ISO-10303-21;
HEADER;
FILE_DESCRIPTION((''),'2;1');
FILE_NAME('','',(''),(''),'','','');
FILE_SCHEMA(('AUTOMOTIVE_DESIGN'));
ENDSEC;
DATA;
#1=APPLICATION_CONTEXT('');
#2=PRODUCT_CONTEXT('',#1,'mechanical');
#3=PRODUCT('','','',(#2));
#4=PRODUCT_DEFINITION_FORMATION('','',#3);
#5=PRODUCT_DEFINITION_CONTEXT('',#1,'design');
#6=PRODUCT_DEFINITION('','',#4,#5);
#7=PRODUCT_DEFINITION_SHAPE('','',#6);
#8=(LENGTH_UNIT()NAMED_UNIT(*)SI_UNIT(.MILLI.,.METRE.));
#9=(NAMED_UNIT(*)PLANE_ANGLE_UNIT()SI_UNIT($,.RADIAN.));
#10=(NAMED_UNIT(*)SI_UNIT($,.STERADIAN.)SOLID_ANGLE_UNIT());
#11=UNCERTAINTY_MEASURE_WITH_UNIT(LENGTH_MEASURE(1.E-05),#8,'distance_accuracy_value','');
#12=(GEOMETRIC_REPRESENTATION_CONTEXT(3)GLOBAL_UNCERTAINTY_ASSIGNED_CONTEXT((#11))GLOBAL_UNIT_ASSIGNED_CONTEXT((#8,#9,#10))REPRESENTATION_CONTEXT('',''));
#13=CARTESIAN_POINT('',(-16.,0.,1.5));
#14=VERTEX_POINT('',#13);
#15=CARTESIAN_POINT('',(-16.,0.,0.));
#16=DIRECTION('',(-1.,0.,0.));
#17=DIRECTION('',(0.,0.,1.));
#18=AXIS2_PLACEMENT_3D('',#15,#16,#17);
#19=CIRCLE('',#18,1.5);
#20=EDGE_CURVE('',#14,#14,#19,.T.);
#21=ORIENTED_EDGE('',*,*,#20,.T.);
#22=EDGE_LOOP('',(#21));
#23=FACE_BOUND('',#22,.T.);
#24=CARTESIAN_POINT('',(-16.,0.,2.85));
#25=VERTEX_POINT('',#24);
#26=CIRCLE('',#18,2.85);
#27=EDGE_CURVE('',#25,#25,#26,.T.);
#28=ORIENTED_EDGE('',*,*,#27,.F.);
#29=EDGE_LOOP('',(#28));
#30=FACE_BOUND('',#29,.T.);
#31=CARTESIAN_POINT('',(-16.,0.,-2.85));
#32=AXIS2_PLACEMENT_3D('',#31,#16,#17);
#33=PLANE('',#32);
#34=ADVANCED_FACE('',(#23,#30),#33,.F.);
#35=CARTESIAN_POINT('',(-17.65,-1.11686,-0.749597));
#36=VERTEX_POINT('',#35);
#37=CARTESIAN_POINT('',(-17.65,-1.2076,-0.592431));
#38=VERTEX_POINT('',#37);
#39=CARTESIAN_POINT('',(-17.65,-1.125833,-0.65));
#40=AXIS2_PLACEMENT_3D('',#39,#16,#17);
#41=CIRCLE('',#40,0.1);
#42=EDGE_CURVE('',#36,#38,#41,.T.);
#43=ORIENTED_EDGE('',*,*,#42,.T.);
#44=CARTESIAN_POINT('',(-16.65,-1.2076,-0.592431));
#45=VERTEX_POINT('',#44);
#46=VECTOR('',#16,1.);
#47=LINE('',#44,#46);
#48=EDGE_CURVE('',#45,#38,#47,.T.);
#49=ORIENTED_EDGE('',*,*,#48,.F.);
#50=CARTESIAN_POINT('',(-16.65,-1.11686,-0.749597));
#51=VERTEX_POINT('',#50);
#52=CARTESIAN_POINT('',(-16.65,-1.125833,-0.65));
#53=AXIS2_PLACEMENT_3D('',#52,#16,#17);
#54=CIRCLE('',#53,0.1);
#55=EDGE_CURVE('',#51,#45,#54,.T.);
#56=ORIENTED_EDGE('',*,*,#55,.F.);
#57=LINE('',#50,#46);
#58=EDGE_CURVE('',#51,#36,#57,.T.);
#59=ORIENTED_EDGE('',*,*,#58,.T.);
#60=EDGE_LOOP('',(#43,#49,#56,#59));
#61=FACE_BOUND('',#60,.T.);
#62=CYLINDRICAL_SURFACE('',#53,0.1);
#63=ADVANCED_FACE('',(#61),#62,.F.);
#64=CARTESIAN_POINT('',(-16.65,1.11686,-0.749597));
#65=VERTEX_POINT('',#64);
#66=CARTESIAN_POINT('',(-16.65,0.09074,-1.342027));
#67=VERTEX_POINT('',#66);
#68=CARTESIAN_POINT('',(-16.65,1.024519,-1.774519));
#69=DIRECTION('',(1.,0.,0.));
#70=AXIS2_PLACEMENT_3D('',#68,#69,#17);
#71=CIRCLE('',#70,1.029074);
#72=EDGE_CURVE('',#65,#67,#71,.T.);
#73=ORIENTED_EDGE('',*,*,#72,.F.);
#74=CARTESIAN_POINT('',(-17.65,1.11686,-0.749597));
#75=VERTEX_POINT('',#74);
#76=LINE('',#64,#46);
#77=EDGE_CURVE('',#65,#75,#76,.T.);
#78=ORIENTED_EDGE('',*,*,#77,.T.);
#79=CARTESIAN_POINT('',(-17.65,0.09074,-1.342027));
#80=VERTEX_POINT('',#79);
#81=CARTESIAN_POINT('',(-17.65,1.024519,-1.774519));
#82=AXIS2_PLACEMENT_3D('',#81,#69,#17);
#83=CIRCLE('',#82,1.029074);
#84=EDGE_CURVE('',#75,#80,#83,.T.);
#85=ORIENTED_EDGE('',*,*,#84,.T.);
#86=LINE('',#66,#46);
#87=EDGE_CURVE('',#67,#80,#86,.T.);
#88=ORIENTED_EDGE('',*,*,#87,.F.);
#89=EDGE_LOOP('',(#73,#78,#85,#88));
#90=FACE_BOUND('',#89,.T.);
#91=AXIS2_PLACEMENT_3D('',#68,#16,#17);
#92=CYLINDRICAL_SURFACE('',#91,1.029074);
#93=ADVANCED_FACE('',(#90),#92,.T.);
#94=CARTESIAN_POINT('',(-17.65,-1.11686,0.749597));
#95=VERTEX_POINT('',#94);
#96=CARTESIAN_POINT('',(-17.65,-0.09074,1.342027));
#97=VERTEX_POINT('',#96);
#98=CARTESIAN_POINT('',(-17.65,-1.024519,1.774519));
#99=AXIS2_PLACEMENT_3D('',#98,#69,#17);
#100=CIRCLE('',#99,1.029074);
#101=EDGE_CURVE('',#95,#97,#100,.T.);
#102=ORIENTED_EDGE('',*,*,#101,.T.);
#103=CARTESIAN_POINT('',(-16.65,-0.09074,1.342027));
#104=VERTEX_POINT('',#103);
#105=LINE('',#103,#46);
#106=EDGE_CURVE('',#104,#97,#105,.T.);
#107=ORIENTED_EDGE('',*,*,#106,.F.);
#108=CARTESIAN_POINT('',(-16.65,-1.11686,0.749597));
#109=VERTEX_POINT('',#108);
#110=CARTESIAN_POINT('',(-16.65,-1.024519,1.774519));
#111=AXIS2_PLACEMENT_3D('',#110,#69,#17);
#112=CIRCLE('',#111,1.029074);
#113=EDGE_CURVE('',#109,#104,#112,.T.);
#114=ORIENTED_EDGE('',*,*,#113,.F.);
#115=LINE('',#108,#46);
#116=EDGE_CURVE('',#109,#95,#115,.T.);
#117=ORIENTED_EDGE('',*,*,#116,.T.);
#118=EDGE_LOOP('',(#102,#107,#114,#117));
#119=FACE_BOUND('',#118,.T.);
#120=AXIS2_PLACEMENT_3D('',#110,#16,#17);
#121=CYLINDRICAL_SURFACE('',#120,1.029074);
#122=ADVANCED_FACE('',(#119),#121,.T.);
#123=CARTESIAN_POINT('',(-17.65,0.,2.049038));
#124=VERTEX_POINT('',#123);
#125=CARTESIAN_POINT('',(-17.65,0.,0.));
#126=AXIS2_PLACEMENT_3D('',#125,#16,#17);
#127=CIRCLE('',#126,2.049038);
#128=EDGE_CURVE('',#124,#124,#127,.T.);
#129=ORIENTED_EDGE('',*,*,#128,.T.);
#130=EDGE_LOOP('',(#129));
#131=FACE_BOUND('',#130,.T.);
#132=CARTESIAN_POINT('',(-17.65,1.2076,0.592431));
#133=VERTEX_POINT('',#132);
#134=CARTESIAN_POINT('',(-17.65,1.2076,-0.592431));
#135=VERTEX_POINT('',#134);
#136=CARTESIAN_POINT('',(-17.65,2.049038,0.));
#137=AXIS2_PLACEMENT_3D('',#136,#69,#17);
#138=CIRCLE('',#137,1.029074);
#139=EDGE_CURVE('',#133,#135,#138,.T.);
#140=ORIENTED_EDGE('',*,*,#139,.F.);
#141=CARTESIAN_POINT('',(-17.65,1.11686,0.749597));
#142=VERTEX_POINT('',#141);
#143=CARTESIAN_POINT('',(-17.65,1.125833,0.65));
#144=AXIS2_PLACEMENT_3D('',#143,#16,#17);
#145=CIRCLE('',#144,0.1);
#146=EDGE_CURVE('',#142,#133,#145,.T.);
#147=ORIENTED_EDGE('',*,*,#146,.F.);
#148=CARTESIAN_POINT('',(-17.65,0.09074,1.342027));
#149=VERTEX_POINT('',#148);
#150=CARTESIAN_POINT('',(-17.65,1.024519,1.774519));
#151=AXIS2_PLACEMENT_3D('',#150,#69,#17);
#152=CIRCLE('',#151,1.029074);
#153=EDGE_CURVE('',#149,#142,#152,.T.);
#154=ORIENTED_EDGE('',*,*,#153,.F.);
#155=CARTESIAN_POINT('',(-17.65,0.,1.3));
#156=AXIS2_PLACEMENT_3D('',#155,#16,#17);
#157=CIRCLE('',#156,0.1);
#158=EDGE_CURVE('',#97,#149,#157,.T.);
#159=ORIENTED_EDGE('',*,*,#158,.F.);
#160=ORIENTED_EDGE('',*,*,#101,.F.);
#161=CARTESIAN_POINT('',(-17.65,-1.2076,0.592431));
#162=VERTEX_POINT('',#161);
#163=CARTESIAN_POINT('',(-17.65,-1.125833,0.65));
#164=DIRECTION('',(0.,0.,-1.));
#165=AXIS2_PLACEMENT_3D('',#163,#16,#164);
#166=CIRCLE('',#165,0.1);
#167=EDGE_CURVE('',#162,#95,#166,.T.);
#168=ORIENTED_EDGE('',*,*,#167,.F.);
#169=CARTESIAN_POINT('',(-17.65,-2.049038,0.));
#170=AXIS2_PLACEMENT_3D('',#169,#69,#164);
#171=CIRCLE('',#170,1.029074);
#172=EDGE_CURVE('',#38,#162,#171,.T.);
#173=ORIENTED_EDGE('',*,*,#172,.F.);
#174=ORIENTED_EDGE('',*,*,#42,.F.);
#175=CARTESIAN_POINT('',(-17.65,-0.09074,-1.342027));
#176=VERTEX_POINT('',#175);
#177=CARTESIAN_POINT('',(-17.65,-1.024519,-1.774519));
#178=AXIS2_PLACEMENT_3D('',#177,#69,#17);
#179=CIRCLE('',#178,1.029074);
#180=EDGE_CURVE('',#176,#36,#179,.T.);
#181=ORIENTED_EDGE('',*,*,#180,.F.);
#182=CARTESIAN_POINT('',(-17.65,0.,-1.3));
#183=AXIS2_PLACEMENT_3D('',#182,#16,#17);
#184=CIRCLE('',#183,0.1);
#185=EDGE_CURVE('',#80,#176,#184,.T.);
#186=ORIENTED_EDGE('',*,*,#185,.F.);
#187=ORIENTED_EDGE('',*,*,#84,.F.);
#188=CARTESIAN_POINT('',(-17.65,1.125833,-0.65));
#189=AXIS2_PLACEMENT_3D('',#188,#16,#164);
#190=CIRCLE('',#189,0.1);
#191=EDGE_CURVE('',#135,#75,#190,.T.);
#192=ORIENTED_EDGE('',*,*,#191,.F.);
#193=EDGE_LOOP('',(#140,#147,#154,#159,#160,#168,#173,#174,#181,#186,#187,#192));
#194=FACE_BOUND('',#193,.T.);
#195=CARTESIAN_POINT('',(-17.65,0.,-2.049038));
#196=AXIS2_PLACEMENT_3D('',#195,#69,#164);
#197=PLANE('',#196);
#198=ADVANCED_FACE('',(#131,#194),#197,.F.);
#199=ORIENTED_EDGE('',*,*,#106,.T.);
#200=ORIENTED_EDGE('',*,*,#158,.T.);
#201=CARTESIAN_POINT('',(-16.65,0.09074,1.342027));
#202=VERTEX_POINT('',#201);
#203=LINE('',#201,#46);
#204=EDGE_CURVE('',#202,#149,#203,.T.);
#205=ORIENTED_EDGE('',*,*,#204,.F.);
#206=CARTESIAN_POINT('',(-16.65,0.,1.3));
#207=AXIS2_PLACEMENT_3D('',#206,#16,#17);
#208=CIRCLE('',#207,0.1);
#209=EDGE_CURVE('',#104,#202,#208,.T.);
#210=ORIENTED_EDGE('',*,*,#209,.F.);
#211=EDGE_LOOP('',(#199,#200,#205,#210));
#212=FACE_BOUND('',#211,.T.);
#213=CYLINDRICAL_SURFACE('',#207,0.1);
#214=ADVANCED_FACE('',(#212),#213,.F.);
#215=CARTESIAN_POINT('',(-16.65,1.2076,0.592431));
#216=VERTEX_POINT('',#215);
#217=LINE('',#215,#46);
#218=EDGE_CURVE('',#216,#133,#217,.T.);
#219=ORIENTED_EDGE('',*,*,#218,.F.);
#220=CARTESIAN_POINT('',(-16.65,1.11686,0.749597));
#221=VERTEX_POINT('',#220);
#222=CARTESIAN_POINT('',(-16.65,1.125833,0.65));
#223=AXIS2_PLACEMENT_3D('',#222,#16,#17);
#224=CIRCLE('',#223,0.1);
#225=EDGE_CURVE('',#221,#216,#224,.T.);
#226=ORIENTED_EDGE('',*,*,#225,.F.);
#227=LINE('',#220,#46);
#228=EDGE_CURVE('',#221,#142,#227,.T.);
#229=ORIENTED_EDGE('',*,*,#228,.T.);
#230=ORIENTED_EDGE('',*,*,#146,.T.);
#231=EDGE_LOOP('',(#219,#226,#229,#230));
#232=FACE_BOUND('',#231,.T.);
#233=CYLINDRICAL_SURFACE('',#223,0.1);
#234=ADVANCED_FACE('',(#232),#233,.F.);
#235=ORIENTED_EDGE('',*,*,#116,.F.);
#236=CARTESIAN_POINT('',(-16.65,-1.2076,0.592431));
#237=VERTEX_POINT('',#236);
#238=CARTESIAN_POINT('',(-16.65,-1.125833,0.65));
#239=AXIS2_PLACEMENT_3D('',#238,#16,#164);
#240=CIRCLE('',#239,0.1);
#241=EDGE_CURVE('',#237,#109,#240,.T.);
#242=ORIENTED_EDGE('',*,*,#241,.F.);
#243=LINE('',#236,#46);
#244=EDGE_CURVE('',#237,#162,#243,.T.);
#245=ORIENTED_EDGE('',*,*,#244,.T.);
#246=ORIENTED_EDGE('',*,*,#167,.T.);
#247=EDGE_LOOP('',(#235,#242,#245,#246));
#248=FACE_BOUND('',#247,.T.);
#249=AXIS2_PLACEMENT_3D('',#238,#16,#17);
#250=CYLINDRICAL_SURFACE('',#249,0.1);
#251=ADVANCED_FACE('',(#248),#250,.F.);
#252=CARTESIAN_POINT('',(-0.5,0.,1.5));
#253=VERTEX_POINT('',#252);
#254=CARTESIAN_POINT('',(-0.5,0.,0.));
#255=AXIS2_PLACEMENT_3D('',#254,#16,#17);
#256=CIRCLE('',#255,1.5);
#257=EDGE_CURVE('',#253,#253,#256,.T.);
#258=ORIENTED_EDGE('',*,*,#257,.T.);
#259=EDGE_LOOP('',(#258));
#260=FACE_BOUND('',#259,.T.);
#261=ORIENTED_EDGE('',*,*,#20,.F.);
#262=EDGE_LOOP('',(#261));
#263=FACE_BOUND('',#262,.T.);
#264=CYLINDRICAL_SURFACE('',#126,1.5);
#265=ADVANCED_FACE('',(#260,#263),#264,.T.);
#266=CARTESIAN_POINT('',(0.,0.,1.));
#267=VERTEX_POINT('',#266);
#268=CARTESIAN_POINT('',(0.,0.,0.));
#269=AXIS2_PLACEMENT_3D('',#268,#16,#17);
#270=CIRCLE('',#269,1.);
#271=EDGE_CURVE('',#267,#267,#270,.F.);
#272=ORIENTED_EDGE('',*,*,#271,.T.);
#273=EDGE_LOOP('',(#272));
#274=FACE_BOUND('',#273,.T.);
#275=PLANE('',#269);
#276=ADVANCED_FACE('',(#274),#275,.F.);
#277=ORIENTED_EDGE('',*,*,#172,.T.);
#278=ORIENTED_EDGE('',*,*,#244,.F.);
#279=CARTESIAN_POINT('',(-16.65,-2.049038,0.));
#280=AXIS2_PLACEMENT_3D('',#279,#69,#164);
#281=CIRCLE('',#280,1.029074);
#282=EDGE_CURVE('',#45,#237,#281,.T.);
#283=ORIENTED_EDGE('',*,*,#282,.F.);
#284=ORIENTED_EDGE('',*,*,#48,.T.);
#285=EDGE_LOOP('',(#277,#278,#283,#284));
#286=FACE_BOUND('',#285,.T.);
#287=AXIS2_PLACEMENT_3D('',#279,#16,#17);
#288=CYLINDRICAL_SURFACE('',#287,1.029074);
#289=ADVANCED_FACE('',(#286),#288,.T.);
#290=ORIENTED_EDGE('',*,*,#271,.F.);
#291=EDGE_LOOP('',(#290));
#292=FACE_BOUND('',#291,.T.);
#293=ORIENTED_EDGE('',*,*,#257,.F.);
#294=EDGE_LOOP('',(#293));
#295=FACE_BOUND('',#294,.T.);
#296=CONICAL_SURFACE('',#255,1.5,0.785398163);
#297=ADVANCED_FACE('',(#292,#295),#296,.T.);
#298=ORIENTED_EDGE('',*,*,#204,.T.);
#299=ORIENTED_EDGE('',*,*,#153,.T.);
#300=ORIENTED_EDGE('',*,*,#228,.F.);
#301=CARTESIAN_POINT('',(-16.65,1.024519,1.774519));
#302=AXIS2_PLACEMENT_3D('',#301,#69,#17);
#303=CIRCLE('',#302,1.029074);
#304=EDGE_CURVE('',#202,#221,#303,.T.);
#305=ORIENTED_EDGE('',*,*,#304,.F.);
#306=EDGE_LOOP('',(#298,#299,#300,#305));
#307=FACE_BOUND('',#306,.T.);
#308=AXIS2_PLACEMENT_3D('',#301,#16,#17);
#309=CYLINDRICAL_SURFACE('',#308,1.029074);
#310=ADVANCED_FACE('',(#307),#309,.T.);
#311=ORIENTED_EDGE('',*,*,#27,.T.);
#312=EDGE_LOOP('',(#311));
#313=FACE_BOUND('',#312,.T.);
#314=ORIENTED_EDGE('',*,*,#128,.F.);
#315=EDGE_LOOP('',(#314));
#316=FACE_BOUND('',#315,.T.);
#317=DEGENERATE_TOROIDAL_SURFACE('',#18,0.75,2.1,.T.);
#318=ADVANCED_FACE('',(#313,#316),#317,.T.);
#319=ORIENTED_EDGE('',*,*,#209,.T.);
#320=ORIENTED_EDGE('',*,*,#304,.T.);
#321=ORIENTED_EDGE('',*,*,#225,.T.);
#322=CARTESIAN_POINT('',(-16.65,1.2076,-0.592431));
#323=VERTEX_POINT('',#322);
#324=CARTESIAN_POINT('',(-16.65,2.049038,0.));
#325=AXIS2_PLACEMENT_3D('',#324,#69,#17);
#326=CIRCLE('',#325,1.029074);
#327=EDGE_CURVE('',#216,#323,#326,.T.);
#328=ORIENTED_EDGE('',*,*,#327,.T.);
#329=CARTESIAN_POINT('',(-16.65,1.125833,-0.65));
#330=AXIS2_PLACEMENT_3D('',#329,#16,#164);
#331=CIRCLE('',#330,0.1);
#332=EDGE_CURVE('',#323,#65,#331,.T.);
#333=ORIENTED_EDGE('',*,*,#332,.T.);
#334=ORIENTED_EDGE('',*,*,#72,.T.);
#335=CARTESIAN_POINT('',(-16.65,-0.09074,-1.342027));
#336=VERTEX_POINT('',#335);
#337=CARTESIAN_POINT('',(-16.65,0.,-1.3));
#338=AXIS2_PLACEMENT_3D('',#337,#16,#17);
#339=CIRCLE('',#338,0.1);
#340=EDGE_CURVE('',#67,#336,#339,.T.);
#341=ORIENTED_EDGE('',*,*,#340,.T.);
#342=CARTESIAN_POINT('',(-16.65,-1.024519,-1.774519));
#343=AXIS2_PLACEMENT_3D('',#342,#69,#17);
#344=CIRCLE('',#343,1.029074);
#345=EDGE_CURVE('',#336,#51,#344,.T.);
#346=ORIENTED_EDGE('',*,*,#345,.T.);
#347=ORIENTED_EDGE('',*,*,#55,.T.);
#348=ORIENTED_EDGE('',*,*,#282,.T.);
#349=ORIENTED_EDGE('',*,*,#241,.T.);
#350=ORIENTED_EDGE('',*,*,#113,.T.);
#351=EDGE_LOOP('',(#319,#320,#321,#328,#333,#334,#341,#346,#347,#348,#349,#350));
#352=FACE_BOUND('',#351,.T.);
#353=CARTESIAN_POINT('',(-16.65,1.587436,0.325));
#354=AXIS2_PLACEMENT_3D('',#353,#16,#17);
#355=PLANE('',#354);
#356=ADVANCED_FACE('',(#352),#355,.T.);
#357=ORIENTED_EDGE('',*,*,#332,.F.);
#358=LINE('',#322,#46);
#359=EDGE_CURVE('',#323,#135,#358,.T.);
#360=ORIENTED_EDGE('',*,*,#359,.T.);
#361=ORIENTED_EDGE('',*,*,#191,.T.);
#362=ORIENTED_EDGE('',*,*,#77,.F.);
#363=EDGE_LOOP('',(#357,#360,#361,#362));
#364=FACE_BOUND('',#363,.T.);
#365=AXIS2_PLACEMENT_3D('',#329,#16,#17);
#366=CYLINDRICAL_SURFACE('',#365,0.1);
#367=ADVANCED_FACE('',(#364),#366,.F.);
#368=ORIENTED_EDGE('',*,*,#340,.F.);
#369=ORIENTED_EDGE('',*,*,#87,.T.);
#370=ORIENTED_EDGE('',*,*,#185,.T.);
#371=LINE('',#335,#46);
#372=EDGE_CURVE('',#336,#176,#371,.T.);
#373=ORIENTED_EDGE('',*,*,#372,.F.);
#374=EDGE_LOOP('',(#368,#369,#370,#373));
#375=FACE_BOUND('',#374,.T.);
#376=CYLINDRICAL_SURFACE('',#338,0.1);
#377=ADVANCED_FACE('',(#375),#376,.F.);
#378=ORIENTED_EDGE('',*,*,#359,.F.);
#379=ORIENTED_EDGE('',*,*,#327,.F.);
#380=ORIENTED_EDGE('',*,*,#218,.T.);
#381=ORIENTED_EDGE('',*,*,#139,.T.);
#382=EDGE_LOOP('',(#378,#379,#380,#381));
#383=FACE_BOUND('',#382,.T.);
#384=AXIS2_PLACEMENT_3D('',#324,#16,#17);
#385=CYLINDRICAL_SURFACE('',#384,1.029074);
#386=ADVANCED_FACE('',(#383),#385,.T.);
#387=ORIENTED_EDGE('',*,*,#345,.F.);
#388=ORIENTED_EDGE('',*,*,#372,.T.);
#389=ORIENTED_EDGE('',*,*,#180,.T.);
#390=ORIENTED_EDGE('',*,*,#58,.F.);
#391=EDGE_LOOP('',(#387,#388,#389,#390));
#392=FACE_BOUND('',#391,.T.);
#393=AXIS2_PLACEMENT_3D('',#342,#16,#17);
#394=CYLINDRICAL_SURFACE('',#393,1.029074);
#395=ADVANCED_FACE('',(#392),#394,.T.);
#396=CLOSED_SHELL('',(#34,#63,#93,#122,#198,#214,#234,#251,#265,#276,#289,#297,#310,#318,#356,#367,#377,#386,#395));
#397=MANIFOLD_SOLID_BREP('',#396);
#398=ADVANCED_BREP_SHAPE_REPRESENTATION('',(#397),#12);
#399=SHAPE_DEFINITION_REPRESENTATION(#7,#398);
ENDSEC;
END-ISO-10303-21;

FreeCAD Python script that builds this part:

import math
import FreeCAD as App
import Part
import Sketcher

V = App.Vector
Q = App.Units.Quantity


def edges_at(feature, points):
    """Names of the edges that pass closest to the given points."""
    edges = feature.Shape.Edges
    near = lambda p: min(range(len(edges)), key=lambda i: edges[i].distToShape(Part.Vertex(*p))[0])
    return sorted({f"Edge{near(p) + 1}" for p in points})

doc = App.newDocument("Part")
body = doc.addObject("PartDesign::Body", "Body")

sketch1 = body.newObject("Sketcher::SketchObject", "Sketch")
sketch1.AttachmentSupport = (doc.getObject("XZ_Plane"), [""])
sketch1.MapMode = "FlatFace"
sketch1.addGeometry(Part.LineSegment(V(0, 0, 0), V(0, -1.5, 0)), False)
sketch1.addGeometry(Part.LineSegment(V(0, -1.5, 0), V(-16, -1.5, 0)), False)
sketch1.addGeometry(Part.LineSegment(V(-16, -1.5, 0), V(-16, -2.85, 0)), False)
sketch1.addGeometry(Part.ArcOfCircle(Part.Circle(V(-16, -0.75, 0), V(0, 0, 1), 2.1), math.radians(-141.786789), math.radians(-90)), False)
sketch1.addGeometry(Part.LineSegment(V(-17.65, -2.049038, 0), V(-17.65, 0, 0)), False)
sketch1.addGeometry(Part.LineSegment(V(-17.65, 0, 0), V(0, 0, 0)), False)
sketch1.addConstraint(Sketcher.Constraint("Coincident", 0, 2, 1, 1))
sketch1.addConstraint(Sketcher.Constraint("Coincident", 1, 2, 2, 1))
sketch1.addConstraint(Sketcher.Constraint("Coincident", 2, 2, 3, 2))
sketch1.addConstraint(Sketcher.Constraint("Coincident", 3, 1, 4, 1))
sketch1.addConstraint(Sketcher.Constraint("Coincident", 4, 2, 5, 1))
sketch1.addConstraint(Sketcher.Constraint("Coincident", 5, 2, 0, 1))
sketch1.addConstraint(Sketcher.Constraint("Vertical", 0))
sketch1.addConstraint(Sketcher.Constraint("Horizontal", 1))
sketch1.addConstraint(Sketcher.Constraint("Vertical", 2))
sketch1.addConstraint(Sketcher.Constraint("Vertical", 4))
sketch1.addConstraint(Sketcher.Constraint("Horizontal", 5))
sketch1.addConstraint(Sketcher.Constraint("Coincident", 5, 2, -1, 1))
sketch1.addConstraint(Sketcher.Constraint("Vertical", 3, 3, 1, 2))
sketch1.addConstraint(Sketcher.Constraint("Radius", 3, Q("2.1 mm")))
sketch1.addConstraint(Sketcher.Constraint("DistanceX", 1, 2, 1, 1, Q("16 mm")))
sketch1.addConstraint(Sketcher.Constraint("DistanceY", 0, 2, 0, 1, Q("1.5 mm")))
sketch1.addConstraint(Sketcher.Constraint("DistanceX", 5, 1, 5, 2, Q("17.65 mm")))
sketch1.addConstraint(Sketcher.Constraint("DistanceY", 2, 2, 2, 1, Q("1.35 mm")))
revolution = body.newObject("PartDesign::Revolution", "Revolution")
revolution.Profile = sketch1
revolution.ReferenceAxis = (sketch1, ["H_Axis"])
revolution.Angle = 360
doc.recompute()

chamfer = body.newObject("PartDesign::Chamfer", "Chamfer")
chamfer.Base = (revolution, edges_at(revolution, [(0, 0, -1.5)]))
chamfer.Size = 0.5

sketch2 = body.newObject("Sketcher::SketchObject", "Sketch001")
sketch2.AttachmentSupport = (doc.getObject("YZ_Plane"), [""])
sketch2.MapMode = "FlatFace"
sketch2.AttachmentOffset = App.Placement(V(0, 0, -17.65), App.Rotation())
sketch2.addGeometry(Part.ArcOfCircle(Part.Circle(V(1.024519, -1.774519, 0), V(0, 0, 1), 1.029074), math.radians(84.851814), math.radians(155.148185)), False)
sketch2.addGeometry(Part.ArcOfCircle(Part.Circle(V(0, -1.3, 0), V(0, 0, 1), 0.1), math.radians(-155.148186), math.radians(-24.851814)), False)
sketch2.addGeometry(Part.ArcOfCircle(Part.Circle(V(-1.024519, -1.774519, 0), V(0, 0, 1), 1.029074), math.radians(24.851815), math.radians(95.148186)), False)
sketch2.addGeometry(Part.ArcOfCircle(Part.Circle(V(-1.125833, -0.65, 0), V(0, 0, 1), 0.1), math.radians(144.851814), math.radians(275.148185)), False)
sketch2.addGeometry(Part.ArcOfCircle(Part.Circle(V(-2.049038, 0, 0), V(0, 0, 1), 1.029074), math.radians(-35.148185), math.radians(35.148185)), False)
sketch2.addGeometry(Part.ArcOfCircle(Part.Circle(V(-1.125833, 0.65, 0), V(0, 0, 1), 0.1), math.radians(84.851815), math.radians(215.148186)), False)
sketch2.addGeometry(Part.ArcOfCircle(Part.Circle(V(-1.024519, 1.774519, 0), V(0, 0, 1), 1.029074), math.radians(-95.148186), math.radians(-24.851815)), False)
sketch2.addGeometry(Part.ArcOfCircle(Part.Circle(V(0, 1.3, 0), V(0, 0, 1), 0.1), math.radians(24.851814), math.radians(155.148186)), False)
sketch2.addGeometry(Part.ArcOfCircle(Part.Circle(V(1.024519, 1.774519, 0), V(0, 0, 1), 1.029074), math.radians(-155.148185), math.radians(-84.851814)), False)
sketch2.addGeometry(Part.ArcOfCircle(Part.Circle(V(1.125833, 0.65, 0), V(0, 0, 1), 0.1), math.radians(-35.148186), math.radians(95.148185)), False)
sketch2.addGeometry(Part.ArcOfCircle(Part.Circle(V(2.049038, 0, 0), V(0, 0, 1), 1.029074), math.radians(144.851815), math.radians(215.148185)), False)
sketch2.addGeometry(Part.ArcOfCircle(Part.Circle(V(1.125833, -0.65, 0), V(0, 0, 1), 0.1), math.radians(-95.148185), math.radians(35.148186)), False)
sketch2.addConstraint(Sketcher.Constraint("Tangent", 0, 2, 1, 2))
sketch2.addConstraint(Sketcher.Constraint("Tangent", 1, 1, 2, 1))
sketch2.addConstraint(Sketcher.Constraint("Tangent", 2, 2, 3, 2))
sketch2.addConstraint(Sketcher.Constraint("Tangent", 3, 1, 4, 1))
sketch2.addConstraint(Sketcher.Constraint("Tangent", 4, 2, 5, 2))
sketch2.addConstraint(Sketcher.Constraint("Tangent", 5, 1, 6, 1))
sketch2.addConstraint(Sketcher.Constraint("Tangent", 6, 2, 7, 2))
sketch2.addConstraint(Sketcher.Constraint("Tangent", 7, 1, 8, 1))
sketch2.addConstraint(Sketcher.Constraint("Tangent", 8, 2, 9, 2))
sketch2.addConstraint(Sketcher.Constraint("Tangent", 9, 1, 10, 1))
sketch2.addConstraint(Sketcher.Constraint("Tangent", 10, 2, 11, 2))
sketch2.addConstraint(Sketcher.Constraint("Tangent", 11, 1, 0, 1))
sketch2.addConstraint(Sketcher.Constraint("Equal", 0, 2))
sketch2.addConstraint(Sketcher.Constraint("Equal", 1, 3))
sketch2.addConstraint(Sketcher.Constraint("Equal", 2, 4))
sketch2.addConstraint(Sketcher.Constraint("Equal", 3, 5))
sketch2.addConstraint(Sketcher.Constraint("Equal", 4, 6))
sketch2.addConstraint(Sketcher.Constraint("Equal", 5, 7))
sketch2.addConstraint(Sketcher.Constraint("Equal", 6, 8))
sketch2.addConstraint(Sketcher.Constraint("Equal", 7, 9))
sketch2.addConstraint(Sketcher.Constraint("Equal", 8, 10))
sketch2.addConstraint(Sketcher.Constraint("Equal", 9, 11))
sketch2.addConstraint(Sketcher.Constraint("Symmetric", 0, 3, 6, 3, -1, 1))
sketch2.addConstraint(Sketcher.Constraint("Symmetric", 2, 3, 8, 3, -1, 1))
sketch2.addConstraint(Sketcher.Constraint("Symmetric", 4, 3, 10, 3, -1, 1))
sketch2.addConstraint(Sketcher.Constraint("Symmetric", 0, 3, 2, 3, -2))
sketch2.addConstraint(Sketcher.Constraint("PointOnObject", 4, 3, -1))
sketch2.addConstraint(Sketcher.Constraint("Radius", 1, Q("0.1 mm")))
sketch2.addConstraint(Sketcher.Constraint("DistanceY", 1, 3, -1, 1, Q("1.3 mm")))
sketch2.addConstraint(Sketcher.Constraint("DistanceY", 3, 3, 5, 3, Q("1.3 mm")))
sketch2.addConstraint(Sketcher.Constraint("Radius", 0, Q("1.029074 mm")))
sketch2.addConstraint(Sketcher.Constraint("DistanceX", 3, 1, -1, 1, Q("1.2076 mm")))
pocket1 = body.newObject("PartDesign::Pocket", "Pocket")
pocket1.Profile = sketch2
pocket1.Length = 1
pocket1.Reversed = True

doc.recompute()
